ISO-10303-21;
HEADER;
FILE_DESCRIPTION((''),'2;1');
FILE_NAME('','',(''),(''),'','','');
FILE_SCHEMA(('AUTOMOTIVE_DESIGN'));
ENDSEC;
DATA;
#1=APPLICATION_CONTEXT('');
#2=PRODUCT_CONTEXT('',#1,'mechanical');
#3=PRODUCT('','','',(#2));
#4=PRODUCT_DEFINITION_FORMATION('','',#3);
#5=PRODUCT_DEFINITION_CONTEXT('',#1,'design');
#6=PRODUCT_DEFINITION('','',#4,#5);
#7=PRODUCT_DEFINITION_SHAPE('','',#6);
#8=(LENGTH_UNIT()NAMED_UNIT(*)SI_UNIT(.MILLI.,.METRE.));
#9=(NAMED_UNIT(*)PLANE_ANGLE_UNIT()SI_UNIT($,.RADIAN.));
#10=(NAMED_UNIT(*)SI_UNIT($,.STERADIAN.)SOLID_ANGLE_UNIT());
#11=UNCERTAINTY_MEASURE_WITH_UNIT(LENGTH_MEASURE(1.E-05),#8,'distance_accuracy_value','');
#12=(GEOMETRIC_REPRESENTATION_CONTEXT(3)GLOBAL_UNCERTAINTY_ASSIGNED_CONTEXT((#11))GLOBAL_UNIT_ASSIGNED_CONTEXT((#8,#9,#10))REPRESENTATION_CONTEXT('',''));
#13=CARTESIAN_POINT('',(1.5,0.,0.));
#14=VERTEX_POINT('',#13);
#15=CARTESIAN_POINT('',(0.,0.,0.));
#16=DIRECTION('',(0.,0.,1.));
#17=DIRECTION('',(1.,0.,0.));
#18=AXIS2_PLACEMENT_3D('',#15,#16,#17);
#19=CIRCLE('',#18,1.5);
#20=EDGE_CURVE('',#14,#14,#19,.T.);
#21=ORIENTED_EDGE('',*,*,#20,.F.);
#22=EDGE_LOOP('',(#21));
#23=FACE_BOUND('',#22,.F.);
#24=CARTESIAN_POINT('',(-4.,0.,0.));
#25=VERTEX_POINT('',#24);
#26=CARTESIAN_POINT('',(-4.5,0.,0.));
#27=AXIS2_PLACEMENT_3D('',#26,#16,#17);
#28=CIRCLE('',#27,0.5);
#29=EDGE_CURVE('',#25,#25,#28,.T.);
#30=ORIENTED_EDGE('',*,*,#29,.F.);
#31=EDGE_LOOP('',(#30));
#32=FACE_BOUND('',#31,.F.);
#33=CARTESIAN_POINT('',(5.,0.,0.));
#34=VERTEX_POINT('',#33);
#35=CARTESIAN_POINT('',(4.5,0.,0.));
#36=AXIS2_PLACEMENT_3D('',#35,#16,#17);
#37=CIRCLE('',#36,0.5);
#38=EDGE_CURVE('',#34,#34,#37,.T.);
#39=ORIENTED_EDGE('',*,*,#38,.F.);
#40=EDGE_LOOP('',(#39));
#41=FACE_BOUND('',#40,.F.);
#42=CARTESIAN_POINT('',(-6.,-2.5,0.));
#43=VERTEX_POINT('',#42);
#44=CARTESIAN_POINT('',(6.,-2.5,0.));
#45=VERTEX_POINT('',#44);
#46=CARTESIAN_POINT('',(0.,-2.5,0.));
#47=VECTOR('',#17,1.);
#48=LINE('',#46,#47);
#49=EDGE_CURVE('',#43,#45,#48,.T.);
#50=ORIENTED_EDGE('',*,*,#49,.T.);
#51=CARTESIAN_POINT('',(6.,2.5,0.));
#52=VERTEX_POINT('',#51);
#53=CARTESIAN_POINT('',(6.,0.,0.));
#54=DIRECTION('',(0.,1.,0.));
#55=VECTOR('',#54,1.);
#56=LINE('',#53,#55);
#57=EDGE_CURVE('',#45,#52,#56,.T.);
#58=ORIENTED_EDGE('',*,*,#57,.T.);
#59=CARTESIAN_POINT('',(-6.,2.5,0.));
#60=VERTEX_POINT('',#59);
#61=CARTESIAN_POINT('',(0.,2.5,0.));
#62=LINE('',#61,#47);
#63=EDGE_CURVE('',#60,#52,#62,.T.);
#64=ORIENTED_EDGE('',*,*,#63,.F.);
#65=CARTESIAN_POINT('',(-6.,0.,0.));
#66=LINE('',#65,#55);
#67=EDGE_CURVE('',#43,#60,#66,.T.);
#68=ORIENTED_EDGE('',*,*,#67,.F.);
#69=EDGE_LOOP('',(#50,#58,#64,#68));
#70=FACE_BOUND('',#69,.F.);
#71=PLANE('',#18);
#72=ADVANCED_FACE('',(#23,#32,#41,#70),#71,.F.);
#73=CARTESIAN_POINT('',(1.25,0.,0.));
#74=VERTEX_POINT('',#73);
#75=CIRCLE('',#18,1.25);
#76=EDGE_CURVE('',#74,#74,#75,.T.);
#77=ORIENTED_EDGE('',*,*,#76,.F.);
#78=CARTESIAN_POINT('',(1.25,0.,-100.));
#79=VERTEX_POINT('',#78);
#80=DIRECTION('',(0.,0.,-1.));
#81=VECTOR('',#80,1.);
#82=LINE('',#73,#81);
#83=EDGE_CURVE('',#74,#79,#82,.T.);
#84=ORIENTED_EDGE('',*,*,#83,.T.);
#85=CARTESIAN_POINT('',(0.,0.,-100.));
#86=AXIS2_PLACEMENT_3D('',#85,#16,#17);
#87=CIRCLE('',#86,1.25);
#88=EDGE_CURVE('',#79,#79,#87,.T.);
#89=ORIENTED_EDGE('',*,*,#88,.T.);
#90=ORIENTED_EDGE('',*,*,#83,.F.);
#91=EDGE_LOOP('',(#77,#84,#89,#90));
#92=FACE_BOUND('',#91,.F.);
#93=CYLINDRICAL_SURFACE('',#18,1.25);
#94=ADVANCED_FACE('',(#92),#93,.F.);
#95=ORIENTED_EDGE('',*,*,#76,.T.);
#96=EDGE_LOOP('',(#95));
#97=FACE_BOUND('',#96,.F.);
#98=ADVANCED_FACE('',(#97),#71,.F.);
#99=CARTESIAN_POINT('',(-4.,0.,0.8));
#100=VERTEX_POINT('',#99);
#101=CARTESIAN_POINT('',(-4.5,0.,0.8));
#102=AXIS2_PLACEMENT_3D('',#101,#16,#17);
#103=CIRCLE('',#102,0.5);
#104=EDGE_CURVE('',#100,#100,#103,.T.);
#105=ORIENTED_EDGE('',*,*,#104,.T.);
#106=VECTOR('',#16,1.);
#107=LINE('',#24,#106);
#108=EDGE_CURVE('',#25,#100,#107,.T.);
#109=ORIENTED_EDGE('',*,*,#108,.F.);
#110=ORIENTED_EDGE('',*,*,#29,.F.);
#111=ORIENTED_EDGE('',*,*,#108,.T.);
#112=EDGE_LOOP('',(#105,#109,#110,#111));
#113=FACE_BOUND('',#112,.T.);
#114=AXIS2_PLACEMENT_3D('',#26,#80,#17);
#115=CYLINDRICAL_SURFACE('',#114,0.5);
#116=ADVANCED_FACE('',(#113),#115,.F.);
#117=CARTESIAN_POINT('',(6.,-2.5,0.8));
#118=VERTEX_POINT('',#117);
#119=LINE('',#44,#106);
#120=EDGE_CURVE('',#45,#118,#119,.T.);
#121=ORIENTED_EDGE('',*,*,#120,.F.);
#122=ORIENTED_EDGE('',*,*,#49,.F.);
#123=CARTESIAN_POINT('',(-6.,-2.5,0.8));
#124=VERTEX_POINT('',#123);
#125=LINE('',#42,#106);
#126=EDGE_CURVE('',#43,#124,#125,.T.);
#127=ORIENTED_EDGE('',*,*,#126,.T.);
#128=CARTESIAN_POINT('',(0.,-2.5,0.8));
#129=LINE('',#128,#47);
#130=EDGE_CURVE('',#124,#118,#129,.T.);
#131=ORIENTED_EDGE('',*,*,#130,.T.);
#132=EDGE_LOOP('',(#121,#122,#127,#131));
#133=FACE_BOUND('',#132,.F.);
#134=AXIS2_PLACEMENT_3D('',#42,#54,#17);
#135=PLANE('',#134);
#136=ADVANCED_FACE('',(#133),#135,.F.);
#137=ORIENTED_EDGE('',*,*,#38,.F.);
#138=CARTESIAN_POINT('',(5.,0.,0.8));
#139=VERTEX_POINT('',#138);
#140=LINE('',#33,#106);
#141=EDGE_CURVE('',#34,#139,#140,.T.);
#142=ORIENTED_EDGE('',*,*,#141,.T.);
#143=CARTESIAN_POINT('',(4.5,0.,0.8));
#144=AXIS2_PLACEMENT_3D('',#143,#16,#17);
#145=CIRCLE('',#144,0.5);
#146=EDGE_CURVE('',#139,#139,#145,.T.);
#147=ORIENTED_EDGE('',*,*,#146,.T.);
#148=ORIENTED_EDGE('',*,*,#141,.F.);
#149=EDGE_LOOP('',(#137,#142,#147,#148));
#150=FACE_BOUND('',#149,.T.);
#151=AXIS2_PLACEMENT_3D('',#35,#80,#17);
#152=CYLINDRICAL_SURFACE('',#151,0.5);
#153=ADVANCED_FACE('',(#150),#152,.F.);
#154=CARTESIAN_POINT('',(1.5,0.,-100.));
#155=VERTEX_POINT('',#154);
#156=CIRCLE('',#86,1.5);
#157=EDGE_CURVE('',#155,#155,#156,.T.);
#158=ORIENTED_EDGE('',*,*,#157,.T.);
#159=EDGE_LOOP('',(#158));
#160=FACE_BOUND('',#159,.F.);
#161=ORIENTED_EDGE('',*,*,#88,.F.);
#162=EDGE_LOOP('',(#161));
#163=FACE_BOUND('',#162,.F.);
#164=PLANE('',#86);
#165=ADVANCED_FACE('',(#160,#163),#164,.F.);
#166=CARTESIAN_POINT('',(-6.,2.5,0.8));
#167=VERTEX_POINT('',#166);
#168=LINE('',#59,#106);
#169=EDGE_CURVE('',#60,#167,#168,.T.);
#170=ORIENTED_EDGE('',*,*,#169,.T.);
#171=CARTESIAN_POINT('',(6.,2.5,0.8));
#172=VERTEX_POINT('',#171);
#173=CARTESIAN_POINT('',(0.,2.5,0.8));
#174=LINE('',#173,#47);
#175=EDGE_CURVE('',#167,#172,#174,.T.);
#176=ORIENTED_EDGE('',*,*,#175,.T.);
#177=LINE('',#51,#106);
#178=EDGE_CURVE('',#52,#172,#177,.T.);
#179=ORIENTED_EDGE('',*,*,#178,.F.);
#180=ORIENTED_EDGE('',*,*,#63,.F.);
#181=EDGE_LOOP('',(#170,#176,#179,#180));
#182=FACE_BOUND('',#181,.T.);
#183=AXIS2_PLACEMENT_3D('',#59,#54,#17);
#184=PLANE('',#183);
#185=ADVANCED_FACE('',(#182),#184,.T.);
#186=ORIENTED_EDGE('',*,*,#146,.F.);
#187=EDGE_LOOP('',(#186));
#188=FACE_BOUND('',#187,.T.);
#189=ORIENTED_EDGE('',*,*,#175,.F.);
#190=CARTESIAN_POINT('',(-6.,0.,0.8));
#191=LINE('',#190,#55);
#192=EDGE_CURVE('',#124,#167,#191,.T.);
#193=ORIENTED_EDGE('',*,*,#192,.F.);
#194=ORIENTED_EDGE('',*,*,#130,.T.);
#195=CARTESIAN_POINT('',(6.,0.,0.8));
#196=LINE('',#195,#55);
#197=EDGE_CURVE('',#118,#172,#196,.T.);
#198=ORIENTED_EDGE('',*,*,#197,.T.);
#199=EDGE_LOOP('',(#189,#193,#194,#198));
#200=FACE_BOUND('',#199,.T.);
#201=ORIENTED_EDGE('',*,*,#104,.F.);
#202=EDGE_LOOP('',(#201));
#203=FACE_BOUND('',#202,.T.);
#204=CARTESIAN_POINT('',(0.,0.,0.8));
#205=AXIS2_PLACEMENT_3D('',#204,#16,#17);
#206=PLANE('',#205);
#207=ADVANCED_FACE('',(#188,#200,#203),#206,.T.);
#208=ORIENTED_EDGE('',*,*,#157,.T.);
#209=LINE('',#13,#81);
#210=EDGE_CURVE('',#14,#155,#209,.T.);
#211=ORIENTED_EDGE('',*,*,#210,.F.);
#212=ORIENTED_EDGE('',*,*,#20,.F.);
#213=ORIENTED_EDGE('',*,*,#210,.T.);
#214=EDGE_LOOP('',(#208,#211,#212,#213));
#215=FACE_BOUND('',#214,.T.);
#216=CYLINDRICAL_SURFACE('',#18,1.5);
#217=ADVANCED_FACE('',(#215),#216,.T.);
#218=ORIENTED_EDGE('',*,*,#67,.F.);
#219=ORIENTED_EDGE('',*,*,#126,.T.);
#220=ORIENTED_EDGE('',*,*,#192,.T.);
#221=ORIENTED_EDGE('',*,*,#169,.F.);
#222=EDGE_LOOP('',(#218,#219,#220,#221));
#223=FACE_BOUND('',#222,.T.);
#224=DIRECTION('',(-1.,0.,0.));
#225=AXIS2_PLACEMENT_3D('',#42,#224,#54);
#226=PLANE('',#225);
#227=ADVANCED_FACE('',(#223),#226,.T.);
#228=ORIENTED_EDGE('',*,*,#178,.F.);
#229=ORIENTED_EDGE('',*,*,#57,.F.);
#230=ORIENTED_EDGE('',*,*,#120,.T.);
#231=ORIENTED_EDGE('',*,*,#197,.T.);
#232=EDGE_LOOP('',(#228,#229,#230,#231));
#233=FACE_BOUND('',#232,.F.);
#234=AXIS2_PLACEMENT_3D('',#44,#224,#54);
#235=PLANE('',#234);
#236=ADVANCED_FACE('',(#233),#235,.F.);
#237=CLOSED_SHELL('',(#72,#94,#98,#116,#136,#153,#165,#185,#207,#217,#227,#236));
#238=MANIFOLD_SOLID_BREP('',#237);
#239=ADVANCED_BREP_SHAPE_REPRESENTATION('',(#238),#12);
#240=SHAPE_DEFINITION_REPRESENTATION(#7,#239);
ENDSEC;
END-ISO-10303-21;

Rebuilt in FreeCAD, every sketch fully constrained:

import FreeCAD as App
import Part
import Sketcher

V = App.Vector
Q = App.Units.Quantity


def add_polygon(sketch, points):
    """Adds a closed chain of lines whose ends are joined by coincident constraints."""
    first, n = sketch.GeometryCount, len(points)
    for a, b in zip(points, points[1:] + points[:1]):
        sketch.addGeometry(Part.LineSegment(App.Vector(*a, 0), App.Vector(*b, 0)), False)
    for i in range(n):
        sketch.addConstraint(Sketcher.Constraint("Coincident", first + i, 2, first + (i + 1) % n, 1))

doc = App.newDocument("Part")
body = doc.addObject("PartDesign::Body", "Body")

# Sketch on XY plane
sketch1 = body.newObject("Sketcher::SketchObject", "Sketch")
sketch1.AttachmentSupport = (doc.getObject("XY_Plane"), [""])
sketch1.MapMode = "FlatFace"
add_polygon(sketch1, [(-6, 2.5), (-6, -2.5), (6, -2.5), (6, 2.5)])  # lines 0-3
sketch1.addGeometry(Part.Circle(V(-4.5, 0, 0), V(0, 0, 1), 0.5), False)  # 4
sketch1.addGeometry(Part.Circle(V(4.5, 0, 0), V(0, 0, 1), 0.5), False)  # 5
sketch1.addConstraint([
    Sketcher.Constraint("Vertical", 0),
    Sketcher.Constraint("Horizontal", 1),
    Sketcher.Constraint("Vertical", 2),
    Sketcher.Constraint("Horizontal", 3),
    Sketcher.Constraint("Equal", 4, 5),
    Sketcher.Constraint("Symmetric", 4, 3, 5, 3, -1, 1),
    Sketcher.Constraint("Symmetric", 0, 2, 2, 2, -1, 1),
    Sketcher.Constraint("PointOnObject", 4, 3, -1),
    Sketcher.Constraint("Diameter", 4, Q("1 mm")),
    Sketcher.Constraint("DistanceX", 1, 1, 1, 2, Q("12 mm")),
    Sketcher.Constraint("DistanceY", 0, 2, 0, 1, Q("5 mm")),
    Sketcher.Constraint("DistanceX", 4, 3, 5, 3, Q("9 mm")),
])
pad1 = body.newObject("PartDesign::Pad", "Pad")
pad1.Profile = sketch1
pad1.Length = 0.8

# Sketch on XY plane
sketch2 = body.newObject("Sketcher::SketchObject", "Sketch001")
sketch2.AttachmentSupport = (doc.getObject("XY_Plane"), [""])
sketch2.MapMode = "FlatFace"
sketch2.addGeometry([
    Part.Circle(V(0, 0, 0), V(0, 0, 1), 1.5),
    Part.Circle(V(0, 0, 0), V(0, 0, 1), 1.25),
], False)
sketch2.addConstraint([
    Sketcher.Constraint("Coincident", 0, 3, -1, 1),
    Sketcher.Constraint("Coincident", 1, 3, -1, 1),
    Sketcher.Constraint("Diameter", 0, Q("3 mm")),
    Sketcher.Constraint("Diameter", 1, Q("2.5 mm")),
])
pad2 = body.newObject("PartDesign::Pad", "Pad001")
pad2.Profile = sketch2
pad2.Length = 100
pad2.Reversed = True

doc.recompute()
